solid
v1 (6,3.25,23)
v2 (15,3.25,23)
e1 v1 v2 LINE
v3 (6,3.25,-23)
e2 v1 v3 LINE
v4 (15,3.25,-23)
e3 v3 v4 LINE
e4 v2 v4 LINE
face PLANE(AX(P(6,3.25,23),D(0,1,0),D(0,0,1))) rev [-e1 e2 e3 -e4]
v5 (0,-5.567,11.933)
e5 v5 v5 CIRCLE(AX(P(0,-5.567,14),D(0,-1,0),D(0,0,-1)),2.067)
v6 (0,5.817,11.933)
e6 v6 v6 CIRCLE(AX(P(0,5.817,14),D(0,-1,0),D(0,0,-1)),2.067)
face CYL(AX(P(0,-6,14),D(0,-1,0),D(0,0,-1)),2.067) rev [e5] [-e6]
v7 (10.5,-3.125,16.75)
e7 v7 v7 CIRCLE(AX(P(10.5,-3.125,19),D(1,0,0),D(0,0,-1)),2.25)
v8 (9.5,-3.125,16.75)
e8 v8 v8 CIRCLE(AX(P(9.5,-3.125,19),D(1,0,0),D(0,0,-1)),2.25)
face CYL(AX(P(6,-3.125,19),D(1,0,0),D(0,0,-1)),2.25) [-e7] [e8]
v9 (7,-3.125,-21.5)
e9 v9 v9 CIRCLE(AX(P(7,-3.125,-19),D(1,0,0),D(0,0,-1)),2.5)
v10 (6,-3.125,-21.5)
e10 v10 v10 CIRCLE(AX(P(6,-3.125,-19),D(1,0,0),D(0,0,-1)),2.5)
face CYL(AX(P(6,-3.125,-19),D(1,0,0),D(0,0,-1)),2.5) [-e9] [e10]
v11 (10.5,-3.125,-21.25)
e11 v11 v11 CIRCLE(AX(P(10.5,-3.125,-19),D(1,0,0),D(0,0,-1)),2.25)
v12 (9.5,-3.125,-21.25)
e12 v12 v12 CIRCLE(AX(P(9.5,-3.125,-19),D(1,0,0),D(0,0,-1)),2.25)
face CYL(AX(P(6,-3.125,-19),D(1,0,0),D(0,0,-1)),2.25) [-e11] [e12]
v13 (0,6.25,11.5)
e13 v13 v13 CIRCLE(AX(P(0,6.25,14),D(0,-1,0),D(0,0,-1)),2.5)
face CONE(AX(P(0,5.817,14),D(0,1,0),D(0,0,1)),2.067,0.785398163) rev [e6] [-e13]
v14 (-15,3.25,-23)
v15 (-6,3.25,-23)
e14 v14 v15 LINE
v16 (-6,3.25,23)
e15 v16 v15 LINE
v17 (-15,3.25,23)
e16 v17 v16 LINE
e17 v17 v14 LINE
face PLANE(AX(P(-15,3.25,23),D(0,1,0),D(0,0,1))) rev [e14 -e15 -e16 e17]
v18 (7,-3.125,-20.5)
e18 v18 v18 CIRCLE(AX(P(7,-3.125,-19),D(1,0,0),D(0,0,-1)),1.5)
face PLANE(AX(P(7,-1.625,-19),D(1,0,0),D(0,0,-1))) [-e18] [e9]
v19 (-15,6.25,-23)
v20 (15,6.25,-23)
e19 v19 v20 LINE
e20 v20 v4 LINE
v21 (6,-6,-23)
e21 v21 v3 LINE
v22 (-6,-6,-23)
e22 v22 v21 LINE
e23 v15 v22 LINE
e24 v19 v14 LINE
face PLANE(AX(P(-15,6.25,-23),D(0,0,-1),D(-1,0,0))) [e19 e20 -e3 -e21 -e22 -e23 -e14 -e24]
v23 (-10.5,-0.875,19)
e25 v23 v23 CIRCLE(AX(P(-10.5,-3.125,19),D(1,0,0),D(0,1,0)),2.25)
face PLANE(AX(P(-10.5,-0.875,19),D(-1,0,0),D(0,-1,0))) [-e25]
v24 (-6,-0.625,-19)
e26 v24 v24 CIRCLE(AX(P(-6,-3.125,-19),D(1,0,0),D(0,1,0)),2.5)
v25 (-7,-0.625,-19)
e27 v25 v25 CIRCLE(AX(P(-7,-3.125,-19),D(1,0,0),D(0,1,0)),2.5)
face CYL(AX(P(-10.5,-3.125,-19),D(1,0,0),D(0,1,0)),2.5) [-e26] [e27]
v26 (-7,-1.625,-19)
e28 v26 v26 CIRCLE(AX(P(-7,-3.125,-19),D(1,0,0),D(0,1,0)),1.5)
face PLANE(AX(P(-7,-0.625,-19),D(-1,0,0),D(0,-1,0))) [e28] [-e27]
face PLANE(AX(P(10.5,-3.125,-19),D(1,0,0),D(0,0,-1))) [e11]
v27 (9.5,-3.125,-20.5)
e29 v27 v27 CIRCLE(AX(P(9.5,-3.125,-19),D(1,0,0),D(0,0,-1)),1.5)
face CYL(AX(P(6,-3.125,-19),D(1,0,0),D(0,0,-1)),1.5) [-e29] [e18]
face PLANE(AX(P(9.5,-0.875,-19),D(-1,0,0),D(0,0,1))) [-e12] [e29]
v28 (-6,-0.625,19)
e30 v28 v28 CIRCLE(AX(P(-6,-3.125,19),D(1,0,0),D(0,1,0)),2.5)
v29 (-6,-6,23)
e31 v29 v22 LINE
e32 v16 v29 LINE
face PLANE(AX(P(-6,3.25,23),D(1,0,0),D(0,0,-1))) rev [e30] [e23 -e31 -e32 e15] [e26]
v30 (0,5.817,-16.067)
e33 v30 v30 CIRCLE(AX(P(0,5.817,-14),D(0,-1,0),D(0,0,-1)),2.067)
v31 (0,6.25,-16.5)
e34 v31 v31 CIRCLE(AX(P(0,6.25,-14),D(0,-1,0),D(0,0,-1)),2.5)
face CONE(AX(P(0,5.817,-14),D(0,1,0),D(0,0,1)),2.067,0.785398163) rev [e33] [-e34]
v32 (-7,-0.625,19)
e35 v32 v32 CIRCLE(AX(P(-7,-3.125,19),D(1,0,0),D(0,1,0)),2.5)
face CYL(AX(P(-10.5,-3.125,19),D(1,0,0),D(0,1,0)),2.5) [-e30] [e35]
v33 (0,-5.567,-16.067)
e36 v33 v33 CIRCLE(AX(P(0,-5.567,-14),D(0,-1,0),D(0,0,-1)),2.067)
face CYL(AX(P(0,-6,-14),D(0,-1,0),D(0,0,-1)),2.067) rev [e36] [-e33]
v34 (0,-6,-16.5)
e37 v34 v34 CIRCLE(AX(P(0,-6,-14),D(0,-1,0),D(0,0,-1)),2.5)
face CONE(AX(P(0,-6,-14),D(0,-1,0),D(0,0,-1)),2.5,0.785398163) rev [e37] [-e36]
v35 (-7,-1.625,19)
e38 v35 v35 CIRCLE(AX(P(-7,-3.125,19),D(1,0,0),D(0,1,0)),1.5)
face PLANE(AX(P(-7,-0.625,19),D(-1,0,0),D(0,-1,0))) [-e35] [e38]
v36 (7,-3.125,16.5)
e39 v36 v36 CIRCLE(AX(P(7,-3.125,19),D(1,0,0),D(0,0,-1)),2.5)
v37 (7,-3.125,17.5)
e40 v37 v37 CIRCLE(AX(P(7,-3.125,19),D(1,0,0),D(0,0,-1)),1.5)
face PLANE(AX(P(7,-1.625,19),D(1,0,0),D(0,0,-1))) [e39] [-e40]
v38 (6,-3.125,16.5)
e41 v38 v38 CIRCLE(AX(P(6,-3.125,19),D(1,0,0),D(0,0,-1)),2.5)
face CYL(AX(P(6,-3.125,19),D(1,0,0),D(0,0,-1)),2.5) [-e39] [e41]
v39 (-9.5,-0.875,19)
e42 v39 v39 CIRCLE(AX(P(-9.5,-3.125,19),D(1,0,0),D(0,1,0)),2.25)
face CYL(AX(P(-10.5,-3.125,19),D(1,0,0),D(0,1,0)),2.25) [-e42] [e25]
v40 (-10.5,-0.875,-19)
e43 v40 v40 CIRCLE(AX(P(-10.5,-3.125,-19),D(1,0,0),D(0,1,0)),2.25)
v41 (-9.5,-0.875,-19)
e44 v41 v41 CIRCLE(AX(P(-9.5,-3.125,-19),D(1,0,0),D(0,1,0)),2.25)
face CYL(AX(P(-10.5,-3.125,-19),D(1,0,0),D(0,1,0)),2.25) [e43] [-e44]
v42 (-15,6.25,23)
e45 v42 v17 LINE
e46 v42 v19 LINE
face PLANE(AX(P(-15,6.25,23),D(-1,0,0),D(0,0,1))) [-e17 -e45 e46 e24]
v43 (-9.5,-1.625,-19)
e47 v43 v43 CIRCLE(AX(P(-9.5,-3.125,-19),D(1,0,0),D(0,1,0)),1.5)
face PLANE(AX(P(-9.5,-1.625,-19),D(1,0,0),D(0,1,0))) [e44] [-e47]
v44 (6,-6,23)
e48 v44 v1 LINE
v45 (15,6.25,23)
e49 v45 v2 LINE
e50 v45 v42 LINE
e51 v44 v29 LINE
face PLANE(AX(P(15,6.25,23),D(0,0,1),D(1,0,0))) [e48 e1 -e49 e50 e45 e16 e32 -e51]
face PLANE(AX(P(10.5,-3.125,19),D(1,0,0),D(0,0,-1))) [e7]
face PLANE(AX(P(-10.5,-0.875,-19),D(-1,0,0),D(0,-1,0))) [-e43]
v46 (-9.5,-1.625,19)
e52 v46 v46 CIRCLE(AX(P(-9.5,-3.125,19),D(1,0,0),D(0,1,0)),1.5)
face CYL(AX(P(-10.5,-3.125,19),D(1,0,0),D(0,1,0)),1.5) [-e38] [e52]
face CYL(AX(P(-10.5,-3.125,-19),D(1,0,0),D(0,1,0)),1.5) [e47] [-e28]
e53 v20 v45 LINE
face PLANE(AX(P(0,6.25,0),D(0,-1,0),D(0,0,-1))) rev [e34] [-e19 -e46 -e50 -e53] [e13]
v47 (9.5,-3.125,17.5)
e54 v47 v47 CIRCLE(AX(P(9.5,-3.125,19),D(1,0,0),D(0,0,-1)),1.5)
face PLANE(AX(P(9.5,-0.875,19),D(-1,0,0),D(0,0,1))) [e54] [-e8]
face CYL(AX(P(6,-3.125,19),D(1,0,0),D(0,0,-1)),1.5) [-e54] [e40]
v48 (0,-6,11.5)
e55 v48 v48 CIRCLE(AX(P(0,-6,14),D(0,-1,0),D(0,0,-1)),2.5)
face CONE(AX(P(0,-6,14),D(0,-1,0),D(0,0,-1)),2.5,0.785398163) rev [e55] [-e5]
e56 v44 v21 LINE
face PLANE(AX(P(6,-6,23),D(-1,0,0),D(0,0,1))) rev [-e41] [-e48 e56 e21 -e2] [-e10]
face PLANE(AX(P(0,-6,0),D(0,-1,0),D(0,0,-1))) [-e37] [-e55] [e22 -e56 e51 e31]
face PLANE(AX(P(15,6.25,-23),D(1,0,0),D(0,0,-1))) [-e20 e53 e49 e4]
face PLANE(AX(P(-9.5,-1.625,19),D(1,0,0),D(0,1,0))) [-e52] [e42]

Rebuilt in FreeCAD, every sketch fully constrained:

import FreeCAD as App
import Part
import Sketcher

doc = App.newDocument("Part")
body = doc.addObject("PartDesign::Body", "Body")

# Sketch on XZ plane
sketch1 = body.newObject("Sketcher::SketchObject", "Sketch")
sketch1.AttachmentSupport = (doc.getObject("XZ_Plane"), [""])
sketch1.MapMode = "FlatFace"
sketch1.AttachmentOffset = App.Placement(App.Vector(0, 0, 6), App.Rotation())
sketch1.addGeometry([
    Part.LineSegment(App.Vector(-15, 23, 0), App.Vector(-15, -23, 0)),
    Part.LineSegment(App.Vector(-15, -23, 0), App.Vector(15, -23, 0)),
    Part.LineSegment(App.Vector(15, -23, 0), App.Vector(15, 23, 0)),
    Part.LineSegment(App.Vector(15, 23, 0), App.Vector(-15, 23, 0)),
], False)
sketch1.addConstraint([
    Sketcher.Constraint("Coincident", 0, 2, 1, 1),
    Sketcher.Constraint("Coincident", 1, 2, 2, 1),
    Sketcher.Constraint("Coincident", 2, 2, 3, 1),
    Sketcher.Constraint("Coincident", 3, 2, 0, 1),
    Sketcher.Constraint("Vertical", 0),
    Sketcher.Constraint("Horizontal", 1),
    Sketcher.Constraint("Vertical", 2),
    Sketcher.Constraint("Horizontal", 3),
    Sketcher.Constraint("Symmetric", 0, 2, 2, 2, -1, 1),
    Sketcher.Constraint("DistanceX", 1, 1, 1, 2, 30.0),
    Sketcher.Constraint("DistanceY", 0, 2, 0, 1, 46.0),
])
pad1 = body.newObject("PartDesign::Pad", "Pad")
pad1.Profile = sketch1
pad1.Length = 12.25
pad1.Reversed = True

# Sketch on XY plane
sketch2 = body.newObject("Sketcher::SketchObject", "Sketch001")
sketch2.AttachmentSupport = (doc.getObject("XY_Plane"), [""])
sketch2.MapMode = "FlatFace"
sketch2.AttachmentOffset = App.Placement(App.Vector(0, 0, -23), App.Rotation())
sketch2.addGeometry([
    Part.LineSegment(App.Vector(-6, 3, 0), App.Vector(-6, -6, 0)),
    Part.LineSegment(App.Vector(-6, -6, 0), App.Vector(-15, -6, 0)),
    Part.LineSegment(App.Vector(-15, -6, 0), App.Vector(-15, 3, 0)),
    Part.LineSegment(App.Vector(-15, 3, 0), App.Vector(-6, 3, 0)),
], False)
sketch2.addConstraint([
    Sketcher.Constraint("Coincident", 0, 2, 1, 1),
    Sketcher.Constraint("Coincident", 1, 2, 2, 1),
    Sketcher.Constraint("Coincident", 2, 2, 3, 1),
    Sketcher.Constraint("Coincident", 3, 2, 0, 1),
    Sketcher.Constraint("Vertical", 0),
    Sketcher.Constraint("Horizontal", 1),
    Sketcher.Constraint("Vertical", 2),
    Sketcher.Constraint("Horizontal", 3),
    Sketcher.Constraint("DistanceX", 1, 2, 1, 1, 9.0),
    Sketcher.Constraint("DistanceX", 0, 2, -1, 1, 6.0),
    Sketcher.Constraint("DistanceY", 0, 2, -1, 1, 6.0),
    Sketcher.Constraint("DistanceY", 0, 2, 0, 1, 9.25),
])
pocket1 = body.newObject("PartDesign::Pocket", "Pocket")
pocket1.Profile = sketch2
pocket1.Type = "ThroughAll"
pocket1.Reversed = True

# Sketch on XY plane
sketch3 = body.newObject("Sketcher::SketchObject", "Sketch002")
sketch3.AttachmentSupport = (doc.getObject("XY_Plane"), [""])
sketch3.MapMode = "FlatFace"
sketch3.AttachmentOffset = App.Placement(App.Vector(0, 0, -23), App.Rotation())
sketch3.addGeometry([
    Part.LineSegment(App.Vector(15, 3, 0), App.Vector(15, -6, 0)),
    Part.LineSegment(App.Vector(15, -6, 0), App.Vector(6, -6, 0)),
    Part.LineSegment(App.Vector(6, -6, 0), App.Vector(6, 3, 0)),
    Part.LineSegment(App.Vector(6, 3, 0), App.Vector(15, 3, 0)),
], False)
sketch3.addConstraint([
    Sketcher.Constraint("Coincident", 0, 2, 1, 1),
    Sketcher.Constraint("Coincident", 1, 2, 2, 1),
    Sketcher.Constraint("Coincident", 2, 2, 3, 1),
    Sketcher.Constraint("Coincident", 3, 2, 0, 1),
    Sketcher.Constraint("Vertical", 0),
    Sketcher.Constraint("Horizontal", 1),
    Sketcher.Constraint("Vertical", 2),
    Sketcher.Constraint("Horizontal", 3),
    Sketcher.Constraint("DistanceX", 1, 2, 1, 1, 9.0),
    Sketcher.Constraint("DistanceX", -1, 1, 0, 2, 15.0),
    Sketcher.Constraint("DistanceY", 0, 2, -1, 1, 6.0),
    Sketcher.Constraint("DistanceY", 0, 2, 0, 1, 9.25),
])
pocket2 = body.newObject("PartDesign::Pocket", "Pocket001")
pocket2.Profile = sketch3
pocket2.Type = "ThroughAll"
pocket2.Reversed = True

# Sketch on XY plane
sketch4 = body.newObject("Sketcher::SketchObject", "Sketch003")
sketch4.AttachmentSupport = (doc.getObject("XY_Plane"), [""])
sketch4.MapMode = "FlatFace"
sketch4.AttachmentOffset = App.Placement(App.Vector(0, 0, 19), App.Rotation())
sketch4.addGeometry([
    Part.LineSegment(App.Vector(6, -0.6, 0), App.Vector(6, -3.1, 0)),  # 0
    Part.LineSegment(App.Vector(6, -3.1, 0), App.Vector(10.5, -3.1, 0)),  # 1
    Part.LineSegment(App.Vector(10.5, -3.1, 0), App.Vector(10.5, -0.9, 0)),  # 2
    Part.LineSegment(App.Vector(10.5, -0.9, 0), App.Vector(9.5, -0.9, 0)),  # 3
    Part.LineSegment(App.Vector(9.5, -0.9, 0), App.Vector(9.5, -1.6, 0)),  # 4
    Part.LineSegment(App.Vector(9.5, -1.6, 0), App.Vector(7, -1.6, 0)),  # 5
    Part.LineSegment(App.Vector(7, -1.6, 0), App.Vector(7, -0.6, 0)),  # 6
    Part.LineSegment(App.Vector(7, -0.6, 0), App.Vector(6, -0.6, 0)),  # 7
], False)
sketch4.addGeometry(Part.LineSegment(App.Vector(6, -3.1, 0), App.Vector(10.5, -3.1, 0)), True)  # axis
sketch4.addConstraint([
    Sketcher.Constraint("Coincident", 0, 2, 1, 1),
    Sketcher.Constraint("Coincident", 1, 2, 2, 1),
    Sketcher.Constraint("Coincident", 2, 2, 3, 1),
    Sketcher.Constraint("Coincident", 3, 2, 4, 1),
    Sketcher.Constraint("Coincident", 4, 2, 5, 1),
    Sketcher.Constraint("Coincident", 5, 2, 6, 1),
    Sketcher.Constraint("Coincident", 6, 2, 7, 1),
    Sketcher.Constraint("Coincident", 7, 2, 0, 1),
    Sketcher.Constraint("Vertical", 0),
    Sketcher.Constraint("Horizontal", 1),
    Sketcher.Constraint("Vertical", 2),
    Sketcher.Constraint("Horizontal", 3),
    Sketcher.Constraint("Vertical", 4),
    Sketcher.Constraint("Horizontal", 5),
    Sketcher.Constraint("Vertical", 6),
    Sketcher.Constraint("Horizontal", 7),
    Sketcher.Constraint("Horizontal", 8),
    Sketcher.Constraint("Coincident", 8, 1, 0, 2),
    Sketcher.Constraint("Vertical", 2, 2, 8, 2),
    Sketcher.Constraint("Equal", 3, 7),
    Sketcher.Constraint("Equal", 5, 0),
    Sketcher.Constraint("Equal", 7, 6),
    Sketcher.Constraint("DistanceX", 3, 2, 3, 1, 1.0),
    Sketcher.Constraint("DistanceX", 1, 1, 1, 2, 4.5),
    Sketcher.Constraint("DistanceX", -1, 1, 0, 2, 6.0),
    Sketcher.Constraint("DistanceY", 2, 1, 2, 2, 2.25),
    Sketcher.Constraint("DistanceY", 0, 2, -1, 1, 3.125),
])
revolution = body.newObject("PartDesign::Revolution", "Revolution")
revolution.Profile = sketch4
revolution.ReferenceAxis = (sketch4, ["Axis0"])
revolution.Angle = 360

# Sketch on XY plane
sketch5 = body.newObject("Sketcher::SketchObject", "Sketch004")
sketch5.AttachmentSupport = (doc.getObject("XY_Plane"), [""])
sketch5.MapMode = "FlatFace"
sketch5.AttachmentOffset = App.Placement(App.Vector(0, 0, 19), App.Rotation())
sketch5.addGeometry([
    Part.LineSegment(App.Vector(-10.5, -0.9, 0), App.Vector(-10.5, -3.1, 0)),  # 0
    Part.LineSegment(App.Vector(-10.5, -3.1, 0), App.Vector(-6, -3.1, 0)),  # 1
    Part.LineSegment(App.Vector(-6, -3.1, 0), App.Vector(-6, -0.6, 0)),  # 2
    Part.LineSegment(App.Vector(-6, -0.6, 0), App.Vector(-7, -0.6, 0)),  # 3
    Part.LineSegment(App.Vector(-7, -0.6, 0), App.Vector(-7, -1.6, 0)),  # 4
    Part.LineSegment(App.Vector(-7, -1.6, 0), App.Vector(-9.5, -1.6, 0)),  # 5
    Part.LineSegment(App.Vector(-9.5, -1.6, 0), App.Vector(-9.5, -0.9, 0)),  # 6
    Part.LineSegment(App.Vector(-9.5, -0.9, 0), App.Vector(-10.5, -0.9, 0)),  # 7
], False)
sketch5.addGeometry(Part.LineSegment(App.Vector(-10.5, -3.1, 0), App.Vector(-6, -3.1, 0)), True)  # axis
sketch5.addConstraint([
    Sketcher.Constraint("Coincident", 0, 2, 1, 1),
    Sketcher.Constraint("Coincident", 1, 2, 2, 1),
    Sketcher.Constraint("Coincident", 2, 2, 3, 1),
    Sketcher.Constraint("Coincident", 3, 2, 4, 1),
    Sketcher.Constraint("Coincident", 4, 2, 5, 1),
    Sketcher.Constraint("Coincident", 5, 2, 6, 1),
    Sketcher.Constraint("Coincident", 6, 2, 7, 1),
    Sketcher.Constraint("Coincident", 7, 2, 0, 1),
    Sketcher.Constraint("Vertical", 0),
    Sketcher.Constraint("Horizontal", 1),
    Sketcher.Constraint("Vertical", 2),
    Sketcher.Constraint("Horizontal", 3),
    Sketcher.Constraint("Vertical", 4),
    Sketcher.Constraint("Horizontal", 5),
    Sketcher.Constraint("Vertical", 6),
    Sketcher.Constraint("Horizontal", 7),
    Sketcher.Constraint("Horizontal", 8),
    Sketcher.Constraint("Coincident", 8, 1, 0, 2),
    Sketcher.Constraint("Vertical", 2, 2, 8, 2),
    Sketcher.Constraint("Equal", 3, 7),
    Sketcher.Constraint("Equal", 5, 2),
    Sketcher.Constraint("Equal", 7, 4),
    Sketcher.Constraint("DistanceX", 3, 2, 3, 1, 1.0),
    Sketcher.Constraint("DistanceX", 1, 1, 1, 2, 4.5),
    Sketcher.Constraint("DistanceX", 1, 2, -1, 1, 6.0),
    Sketcher.Constraint("DistanceY", 0, 2, 0, 1, 2.25),
    Sketcher.Constraint("DistanceY", 0, 2, -1, 1, 3.125),
])
revolution2 = body.newObject("PartDesign::Revolution", "Revolution001")
revolution2.Profile = sketch5
revolution2.ReferenceAxis = (sketch5, ["Axis0"])
revolution2.Angle = 360

# Sketch on XY plane
sketch6 = body.newObject("Sketcher::SketchObject", "Sketch005")
sketch6.AttachmentSupport = (doc.getObject("XY_Plane"), [""])
sketch6.MapMode = "FlatFace"
sketch6.AttachmentOffset = App.Placement(App.Vector(0, 0, -19), App.Rotation())
sketch6.addGeometry([
    Part.LineSegment(App.Vector(6, -0.6, 0), App.Vector(6, -3.1, 0)),  # 0
    Part.LineSegment(App.Vector(6, -3.1, 0), App.Vector(10.5, -3.1, 0)),  # 1
    Part.LineSegment(App.Vector(10.5, -3.1, 0), App.Vector(10.5, -0.9, 0)),  # 2
    Part.LineSegment(App.Vector(10.5, -0.9, 0), App.Vector(9.5, -0.9, 0)),  # 3
    Part.LineSegment(App.Vector(9.5, -0.9, 0), App.Vector(9.5, -1.6, 0)),  # 4
    Part.LineSegment(App.Vector(9.5, -1.6, 0), App.Vector(7, -1.6, 0)),  # 5
    Part.LineSegment(App.Vector(7, -1.6, 0), App.Vector(7, -0.6, 0)),  # 6
    Part.LineSegment(App.Vector(7, -0.6, 0), App.Vector(6, -0.6, 0)),  # 7
], False)
sketch6.addGeometry(Part.LineSegment(App.Vector(6, -3.1, 0), App.Vector(10.5, -3.1, 0)), True)  # axis
sketch6.addConstraint([
    Sketcher.Constraint("Coincident", 0, 2, 1, 1),
    Sketcher.Constraint("Coincident", 1, 2, 2, 1),
    Sketcher.Constraint("Coincident", 2, 2, 3, 1),
    Sketcher.Constraint("Coincident", 3, 2, 4, 1),
    Sketcher.Constraint("Coincident", 4, 2, 5, 1),
    Sketcher.Constraint("Coincident", 5, 2, 6, 1),
    Sketcher.Constraint("Coincident", 6, 2, 7, 1),
    Sketcher.Constraint("Coincident", 7, 2, 0, 1),
    Sketcher.Constraint("Vertical", 0),
    Sketcher.Constraint("Horizontal", 1),
    Sketcher.Constraint("Vertical", 2),
    Sketcher.Constraint("Horizontal", 3),
    Sketcher.Constraint("Vertical", 4),
    Sketcher.Constraint("Horizontal", 5),
    Sketcher.Constraint("Vertical", 6),
    Sketcher.Constraint("Horizontal", 7),
    Sketcher.Constraint("Horizontal", 8),
    Sketcher.Constraint("Coincident", 8, 1, 0, 2),
    Sketcher.Constraint("Vertical", 2, 2, 8, 2),
    Sketcher.Constraint("Equal", 3, 7),
    Sketcher.Constraint("Equal", 5, 0),
    Sketcher.Constraint("Equal", 7, 6),
    Sketcher.Constraint("DistanceX", 3, 2, 3, 1, 1.0),
    Sketcher.Constraint("DistanceX", 1, 1, 1, 2, 4.5),
    Sketcher.Constraint("DistanceX", -1, 1, 0, 2, 6.0),
    Sketcher.Constraint("DistanceY", 2, 1, 2, 2, 2.25),
    Sketcher.Constraint("DistanceY", 0, 2, -1, 1, 3.125),
])
revolution3 = body.newObject("PartDesign::Revolution", "Revolution002")
revolution3.Profile = sketch6
revolution3.ReferenceAxis = (sketch6, ["Axis0"])
revolution3.Angle = 360

# Sketch on XY plane
sketch7 = body.newObject("Sketcher::SketchObject", "Sketch006")
sketch7.AttachmentSupport = (doc.getObject("XY_Plane"), [""])
sketch7.MapMode = "FlatFace"
sketch7.AttachmentOffset = App.Placement(App.Vector(0, 0, -19), App.Rotation())
sketch7.addGeometry([
    Part.LineSegment(App.Vector(-10.5, -0.9, 0), App.Vector(-10.5, -3.1, 0)),  # 0
    Part.LineSegment(App.Vector(-10.5, -3.1, 0), App.Vector(-6, -3.1, 0)),  # 1
    Part.LineSegment(App.Vector(-6, -3.1, 0), App.Vector(-6, -0.6, 0)),  # 2
    Part.LineSegment(App.Vector(-6, -0.6, 0), App.Vector(-7, -0.6, 0)),  # 3
    Part.LineSegment(App.Vector(-7, -0.6, 0), App.Vector(-7, -1.6, 0)),  # 4
    Part.LineSegment(App.Vector(-7, -1.6, 0), App.Vector(-9.5, -1.6, 0)),  # 5
    Part.LineSegment(App.Vector(-9.5, -1.6, 0), App.Vector(-9.5, -0.9, 0)),  # 6
    Part.LineSegment(App.Vector(-9.5, -0.9, 0), App.Vector(-10.5, -0.9, 0)),  # 7
], False)
sketch7.addGeometry(Part.LineSegment(App.Vector(-10.5, -3.1, 0), App.Vector(-6, -3.1, 0)), True)  # axis
sketch7.addConstraint([
    Sketcher.Constraint("Coincident", 0, 2, 1, 1),
    Sketcher.Constraint("Coincident", 1, 2, 2, 1),
    Sketcher.Constraint("Coincident", 2, 2, 3, 1),
    Sketcher.Constraint("Coincident", 3, 2, 4, 1),
    Sketcher.Constraint("Coincident", 4, 2, 5, 1),
    Sketcher.Constraint("Coincident", 5, 2, 6, 1),
    Sketcher.Constraint("Coincident", 6, 2, 7, 1),
    Sketcher.Constraint("Coincident", 7, 2, 0, 1),
    Sketcher.Constraint("Vertical", 0),
    Sketcher.Constraint("Horizontal", 1),
    Sketcher.Constraint("Vertical", 2),
    Sketcher.Constraint("Horizontal", 3),
    Sketcher.Constraint("Vertical", 4),
    Sketcher.Constraint("Horizontal", 5),
    Sketcher.Constraint("Vertical", 6),
    Sketcher.Constraint("Horizontal", 7),
    Sketcher.Constraint("Horizontal", 8),
    Sketcher.Constraint("Coincident", 8, 1, 0, 2),
    Sketcher.Constraint("Vertical", 2, 2, 8, 2),
    Sketcher.Constraint("Equal", 3, 7),
    Sketcher.Constraint("Equal", 5, 2),
    Sketcher.Constraint("Equal", 7, 4),
    Sketcher.Constraint("DistanceX", 3, 2, 3, 1, 1.0),
    Sketcher.Constraint("DistanceX", 1, 1, 1, 2, 4.5),
    Sketcher.Constraint("DistanceX", 1, 2, -1, 1, 6.0),
    Sketcher.Constraint("DistanceY", 0, 2, 0, 1, 2.25),
    Sketcher.Constraint("DistanceY", 0, 2, -1, 1, 3.125),
])
revolution4 = body.newObject("PartDesign::Revolution", "Revolution003")
revolution4.Profile = sketch7
revolution4.ReferenceAxis = (sketch7, ["Axis0"])
revolution4.Angle = 360

# Sketch on YZ plane
sketch8 = body.newObject("Sketcher::SketchObject", "Sketch007")
sketch8.AttachmentSupport = (doc.getObject("YZ_Plane"), [""])
sketch8.MapMode = "FlatFace"
sketch8.addGeometry([
    Part.LineSegment(App.Vector(6.2, -14, 0), App.Vector(-6, -14, 0)),  # 0
    Part.LineSegment(App.Vector(-6, -14, 0), App.Vector(-6, -16.5, 0)),  # 1
    Part.LineSegment(App.Vector(-6, -16.5, 0), App.Vector(-5.6, -16.1, 0)),  # 2
    Part.LineSegment(App.Vector(-5.6, -16.1, 0), App.Vector(5.8, -16.1, 0)),  # 3
    Part.LineSegment(App.Vector(5.8, -16.1, 0), App.Vector(6.2, -16.5, 0)),  # 4
    Part.LineSegment(App.Vector(6.2, -16.5, 0), App.Vector(6.2, -14, 0)),  # 5
], False)
sketch8.addGeometry(Part.LineSegment(App.Vector(-6, -14, 0), App.Vector(6.2, -14, 0)), True)  # axis
sketch8.addConstraint([
    Sketcher.Constraint("Coincident", 0, 2, 1, 1),
    Sketcher.Constraint("Coincident", 1, 2, 2, 1),
    Sketcher.Constraint("Coincident", 2, 2, 3, 1),
    Sketcher.Constraint("Coincident", 3, 2, 4, 1),
    Sketcher.Constraint("Coincident", 4, 2, 5, 1),
    Sketcher.Constraint("Coincident", 5, 2, 0, 1),
    Sketcher.Constraint("Horizontal", 0),
    Sketcher.Constraint("Vertical", 1),
    Sketcher.Constraint("Horizontal", 3),
    Sketcher.Constraint("Vertical", 5),
    Sketcher.Constraint("Horizontal", 6),
    Sketcher.Constraint("Coincident", 6, 1, 0, 2),
    Sketcher.Constraint("Perpendicular", 2, 4),
    Sketcher.Constraint("Horizontal", 1, 2, 4, 2),
    Sketcher.Constraint("Vertical", 4, 2, 6, 2),
    Sketcher.Constraint("Equal", 2, 4),
    Sketcher.Constraint("DistanceY", 1, 2, 1, 1, 2.5),
    Sketcher.Constraint("DistanceX", 0, 2, -1, 1, 6.0),
    Sketcher.Constraint("DistanceY", 0, 2, -1, 1, 14.0),
    Sketcher.Constraint("DistanceX", 0, 2, 0, 1, 12.25),
    Sketcher.Constraint("DistanceX", 3, 1, 3, 2, 11.384),
])
groove = body.newObject("PartDesign::Groove", "Groove")
groove.Profile = sketch8
groove.ReferenceAxis = (sketch8, ["Axis0"])
groove.Angle = 360
doc.recompute()

linearpattern = body.newObject("PartDesign::LinearPattern", "LinearPattern")
linearpattern.Originals = [groove]
linearpattern.Direction = (doc.getObject("Z_Axis"), [""])
linearpattern.Mode = "offset"
linearpattern.Offset = 28
linearpattern.Occurrences = 2
body.Tip = linearpattern

doc.recompute()
